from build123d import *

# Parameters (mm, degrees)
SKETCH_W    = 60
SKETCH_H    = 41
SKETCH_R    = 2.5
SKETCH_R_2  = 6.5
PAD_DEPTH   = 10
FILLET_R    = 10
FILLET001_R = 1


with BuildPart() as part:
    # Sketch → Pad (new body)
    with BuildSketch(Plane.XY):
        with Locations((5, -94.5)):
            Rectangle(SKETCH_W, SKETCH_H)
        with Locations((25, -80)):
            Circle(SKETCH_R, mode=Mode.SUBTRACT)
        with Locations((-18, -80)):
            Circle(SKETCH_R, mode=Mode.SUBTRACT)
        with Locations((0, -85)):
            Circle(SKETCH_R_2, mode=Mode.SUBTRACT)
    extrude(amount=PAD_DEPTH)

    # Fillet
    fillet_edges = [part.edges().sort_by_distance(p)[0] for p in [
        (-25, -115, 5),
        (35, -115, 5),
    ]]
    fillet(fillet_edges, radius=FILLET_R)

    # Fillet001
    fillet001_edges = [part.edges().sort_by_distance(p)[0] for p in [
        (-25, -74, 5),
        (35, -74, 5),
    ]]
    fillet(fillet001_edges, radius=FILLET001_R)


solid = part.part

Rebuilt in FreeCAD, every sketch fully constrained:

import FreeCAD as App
import Part
import Sketcher

V = App.Vector
Q = App.Units.Quantity


def edges_at(feature, points):
    """Names of the edges that pass closest to the given points."""
    edges = feature.Shape.Edges
    near = lambda p: min(range(len(edges)), key=lambda i: edges[i].distToShape(Part.Vertex(*p))[0])
    return sorted({f"Edge{near(p) + 1}" for p in points})

doc = App.newDocument("Part")
params = doc.addObject("Spreadsheet::Sheet", "Params")
for row, (alias, value) in enumerate([
    ("sketch1_diameter", "13 mm"),
    ("sketch1_diameter2", "5 mm"),
    ("sketch1_width", "60 mm"),
    ("sketch1_height", "41 mm"),
    ("pad1_length", "10 mm"),
    ("fillet_radius", "10 mm"),
    ("fillet2_radius", "1 mm"),
], start=1):
    params.set(f"A{row}", alias)
    params.set(f"B{row}", "=" + value)
    params.setAlias(f"B{row}", alias)

body = doc.addObject("PartDesign::Body", "Body")

sketch1 = doc.addObject("Sketcher::SketchObject", "Sketch")
body.addObject(sketch1)
sketch1.AttachmentSupport = (doc.XY_Plane, [""])
sketch1.MapMode = "FlatFace"
sketch1.addGeometry(Part.LineSegment(V(-25, -74, 0), V(-25, -115, 0)), False)
sketch1.addGeometry(Part.LineSegment(V(-25, -115, 0), V(35, -115, 0)), False)
sketch1.addGeometry(Part.LineSegment(V(35, -115, 0), V(35, -74, 0)), False)
sketch1.addGeometry(Part.LineSegment(V(35, -74, 0), V(-25, -74, 0)), False)
sketch1.addGeometry(Part.Circle(V(0, -85, 0), V(0, 0, 1), 6.5), False)
sketch1.addGeometry(Part.Circle(V(-18, -80, 0), V(0, 0, 1), 2.5), False)
sketch1.addGeometry(Part.Circle(V(25, -80, 0), V(0, 0, 1), 2.5), False)
sketch1.addConstraint(Sketcher.Constraint("Coincident", 0, 2, 1, 1))
sketch1.addConstraint(Sketcher.Constraint("Coincident", 1, 2, 2, 1))
sketch1.addConstraint(Sketcher.Constraint("Coincident", 2, 2, 3, 1))
sketch1.addConstraint(Sketcher.Constraint("Coincident", 3, 2, 0, 1))
sketch1.addConstraint(Sketcher.Constraint("Vertical", 0))
sketch1.addConstraint(Sketcher.Constraint("Horizontal", 1))
sketch1.addConstraint(Sketcher.Constraint("Vertical", 2))
sketch1.addConstraint(Sketcher.Constraint("Horizontal", 3))
sketch1.addConstraint(Sketcher.Constraint("Equal", 5, 6))
sketch1.addConstraint(Sketcher.Constraint("PointOnObject", 4, 3, -2))
sketch1.addConstraint(Sketcher.Constraint("Horizontal", 5, 3, 6, 3))
sketch1.addConstraint(Sketcher.Constraint("Diameter", 4, Q("13 mm")))
sketch1.addConstraint(Sketcher.Constraint("Diameter", 5, Q("5 mm")))
sketch1.addConstraint(Sketcher.Constraint("DistanceX", 1, 1, 1, 2, Q("60 mm")))
sketch1.addConstraint(Sketcher.Constraint("DistanceY", 0, 2, 0, 1, Q("41 mm")))
sketch1.addConstraint(Sketcher.Constraint("DistanceY", 4, 3, -1, 1, Q("85 mm")))
sketch1.addConstraint(Sketcher.Constraint("DistanceX", 5, 3, -1, 1, Q("18 mm")))
sketch1.addConstraint(Sketcher.Constraint("DistanceY", 5, 3, -1, 1, Q("80 mm")))
sketch1.addConstraint(Sketcher.Constraint("DistanceX", -1, 1, 6, 3, Q("25 mm")))
sketch1.addConstraint(Sketcher.Constraint("DistanceX", 0, 2, -1, 1, Q("25 mm")))
sketch1.addConstraint(Sketcher.Constraint("DistanceY", 0, 2, -1, 1, Q("115 mm")))
sketch1.setExpression("Constraints[11]", "Params.sketch1_diameter")
sketch1.setExpression("Constraints[12]", "Params.sketch1_diameter2")
sketch1.setExpression("Constraints[13]", "Params.sketch1_width")
sketch1.setExpression("Constraints[14]", "Params.sketch1_height")
pad1 = doc.addObject("PartDesign::Pad", "Pad")
body.addObject(pad1)
pad1.Profile = sketch1
pad1.setExpression("Length", "Params.pad1_length")
doc.recompute()

fillet = doc.addObject("PartDesign::Fillet", "Fillet")
body.addObject(fillet)
fillet.Base = (pad1, edges_at(pad1, [(-25, -115, 5), (35, -115, 5)]))
fillet.setExpression("Radius", "Params.fillet_radius")
doc.recompute()

fillet2 = doc.addObject("PartDesign::Fillet", "Fillet001")
body.addObject(fillet2)
fillet2.Base = (fillet, edges_at(fillet, [(-25, -74, 5), (35, -74, 5)]))
fillet2.setExpression("Radius", "Params.fillet2_radius")

doc.recompute()
